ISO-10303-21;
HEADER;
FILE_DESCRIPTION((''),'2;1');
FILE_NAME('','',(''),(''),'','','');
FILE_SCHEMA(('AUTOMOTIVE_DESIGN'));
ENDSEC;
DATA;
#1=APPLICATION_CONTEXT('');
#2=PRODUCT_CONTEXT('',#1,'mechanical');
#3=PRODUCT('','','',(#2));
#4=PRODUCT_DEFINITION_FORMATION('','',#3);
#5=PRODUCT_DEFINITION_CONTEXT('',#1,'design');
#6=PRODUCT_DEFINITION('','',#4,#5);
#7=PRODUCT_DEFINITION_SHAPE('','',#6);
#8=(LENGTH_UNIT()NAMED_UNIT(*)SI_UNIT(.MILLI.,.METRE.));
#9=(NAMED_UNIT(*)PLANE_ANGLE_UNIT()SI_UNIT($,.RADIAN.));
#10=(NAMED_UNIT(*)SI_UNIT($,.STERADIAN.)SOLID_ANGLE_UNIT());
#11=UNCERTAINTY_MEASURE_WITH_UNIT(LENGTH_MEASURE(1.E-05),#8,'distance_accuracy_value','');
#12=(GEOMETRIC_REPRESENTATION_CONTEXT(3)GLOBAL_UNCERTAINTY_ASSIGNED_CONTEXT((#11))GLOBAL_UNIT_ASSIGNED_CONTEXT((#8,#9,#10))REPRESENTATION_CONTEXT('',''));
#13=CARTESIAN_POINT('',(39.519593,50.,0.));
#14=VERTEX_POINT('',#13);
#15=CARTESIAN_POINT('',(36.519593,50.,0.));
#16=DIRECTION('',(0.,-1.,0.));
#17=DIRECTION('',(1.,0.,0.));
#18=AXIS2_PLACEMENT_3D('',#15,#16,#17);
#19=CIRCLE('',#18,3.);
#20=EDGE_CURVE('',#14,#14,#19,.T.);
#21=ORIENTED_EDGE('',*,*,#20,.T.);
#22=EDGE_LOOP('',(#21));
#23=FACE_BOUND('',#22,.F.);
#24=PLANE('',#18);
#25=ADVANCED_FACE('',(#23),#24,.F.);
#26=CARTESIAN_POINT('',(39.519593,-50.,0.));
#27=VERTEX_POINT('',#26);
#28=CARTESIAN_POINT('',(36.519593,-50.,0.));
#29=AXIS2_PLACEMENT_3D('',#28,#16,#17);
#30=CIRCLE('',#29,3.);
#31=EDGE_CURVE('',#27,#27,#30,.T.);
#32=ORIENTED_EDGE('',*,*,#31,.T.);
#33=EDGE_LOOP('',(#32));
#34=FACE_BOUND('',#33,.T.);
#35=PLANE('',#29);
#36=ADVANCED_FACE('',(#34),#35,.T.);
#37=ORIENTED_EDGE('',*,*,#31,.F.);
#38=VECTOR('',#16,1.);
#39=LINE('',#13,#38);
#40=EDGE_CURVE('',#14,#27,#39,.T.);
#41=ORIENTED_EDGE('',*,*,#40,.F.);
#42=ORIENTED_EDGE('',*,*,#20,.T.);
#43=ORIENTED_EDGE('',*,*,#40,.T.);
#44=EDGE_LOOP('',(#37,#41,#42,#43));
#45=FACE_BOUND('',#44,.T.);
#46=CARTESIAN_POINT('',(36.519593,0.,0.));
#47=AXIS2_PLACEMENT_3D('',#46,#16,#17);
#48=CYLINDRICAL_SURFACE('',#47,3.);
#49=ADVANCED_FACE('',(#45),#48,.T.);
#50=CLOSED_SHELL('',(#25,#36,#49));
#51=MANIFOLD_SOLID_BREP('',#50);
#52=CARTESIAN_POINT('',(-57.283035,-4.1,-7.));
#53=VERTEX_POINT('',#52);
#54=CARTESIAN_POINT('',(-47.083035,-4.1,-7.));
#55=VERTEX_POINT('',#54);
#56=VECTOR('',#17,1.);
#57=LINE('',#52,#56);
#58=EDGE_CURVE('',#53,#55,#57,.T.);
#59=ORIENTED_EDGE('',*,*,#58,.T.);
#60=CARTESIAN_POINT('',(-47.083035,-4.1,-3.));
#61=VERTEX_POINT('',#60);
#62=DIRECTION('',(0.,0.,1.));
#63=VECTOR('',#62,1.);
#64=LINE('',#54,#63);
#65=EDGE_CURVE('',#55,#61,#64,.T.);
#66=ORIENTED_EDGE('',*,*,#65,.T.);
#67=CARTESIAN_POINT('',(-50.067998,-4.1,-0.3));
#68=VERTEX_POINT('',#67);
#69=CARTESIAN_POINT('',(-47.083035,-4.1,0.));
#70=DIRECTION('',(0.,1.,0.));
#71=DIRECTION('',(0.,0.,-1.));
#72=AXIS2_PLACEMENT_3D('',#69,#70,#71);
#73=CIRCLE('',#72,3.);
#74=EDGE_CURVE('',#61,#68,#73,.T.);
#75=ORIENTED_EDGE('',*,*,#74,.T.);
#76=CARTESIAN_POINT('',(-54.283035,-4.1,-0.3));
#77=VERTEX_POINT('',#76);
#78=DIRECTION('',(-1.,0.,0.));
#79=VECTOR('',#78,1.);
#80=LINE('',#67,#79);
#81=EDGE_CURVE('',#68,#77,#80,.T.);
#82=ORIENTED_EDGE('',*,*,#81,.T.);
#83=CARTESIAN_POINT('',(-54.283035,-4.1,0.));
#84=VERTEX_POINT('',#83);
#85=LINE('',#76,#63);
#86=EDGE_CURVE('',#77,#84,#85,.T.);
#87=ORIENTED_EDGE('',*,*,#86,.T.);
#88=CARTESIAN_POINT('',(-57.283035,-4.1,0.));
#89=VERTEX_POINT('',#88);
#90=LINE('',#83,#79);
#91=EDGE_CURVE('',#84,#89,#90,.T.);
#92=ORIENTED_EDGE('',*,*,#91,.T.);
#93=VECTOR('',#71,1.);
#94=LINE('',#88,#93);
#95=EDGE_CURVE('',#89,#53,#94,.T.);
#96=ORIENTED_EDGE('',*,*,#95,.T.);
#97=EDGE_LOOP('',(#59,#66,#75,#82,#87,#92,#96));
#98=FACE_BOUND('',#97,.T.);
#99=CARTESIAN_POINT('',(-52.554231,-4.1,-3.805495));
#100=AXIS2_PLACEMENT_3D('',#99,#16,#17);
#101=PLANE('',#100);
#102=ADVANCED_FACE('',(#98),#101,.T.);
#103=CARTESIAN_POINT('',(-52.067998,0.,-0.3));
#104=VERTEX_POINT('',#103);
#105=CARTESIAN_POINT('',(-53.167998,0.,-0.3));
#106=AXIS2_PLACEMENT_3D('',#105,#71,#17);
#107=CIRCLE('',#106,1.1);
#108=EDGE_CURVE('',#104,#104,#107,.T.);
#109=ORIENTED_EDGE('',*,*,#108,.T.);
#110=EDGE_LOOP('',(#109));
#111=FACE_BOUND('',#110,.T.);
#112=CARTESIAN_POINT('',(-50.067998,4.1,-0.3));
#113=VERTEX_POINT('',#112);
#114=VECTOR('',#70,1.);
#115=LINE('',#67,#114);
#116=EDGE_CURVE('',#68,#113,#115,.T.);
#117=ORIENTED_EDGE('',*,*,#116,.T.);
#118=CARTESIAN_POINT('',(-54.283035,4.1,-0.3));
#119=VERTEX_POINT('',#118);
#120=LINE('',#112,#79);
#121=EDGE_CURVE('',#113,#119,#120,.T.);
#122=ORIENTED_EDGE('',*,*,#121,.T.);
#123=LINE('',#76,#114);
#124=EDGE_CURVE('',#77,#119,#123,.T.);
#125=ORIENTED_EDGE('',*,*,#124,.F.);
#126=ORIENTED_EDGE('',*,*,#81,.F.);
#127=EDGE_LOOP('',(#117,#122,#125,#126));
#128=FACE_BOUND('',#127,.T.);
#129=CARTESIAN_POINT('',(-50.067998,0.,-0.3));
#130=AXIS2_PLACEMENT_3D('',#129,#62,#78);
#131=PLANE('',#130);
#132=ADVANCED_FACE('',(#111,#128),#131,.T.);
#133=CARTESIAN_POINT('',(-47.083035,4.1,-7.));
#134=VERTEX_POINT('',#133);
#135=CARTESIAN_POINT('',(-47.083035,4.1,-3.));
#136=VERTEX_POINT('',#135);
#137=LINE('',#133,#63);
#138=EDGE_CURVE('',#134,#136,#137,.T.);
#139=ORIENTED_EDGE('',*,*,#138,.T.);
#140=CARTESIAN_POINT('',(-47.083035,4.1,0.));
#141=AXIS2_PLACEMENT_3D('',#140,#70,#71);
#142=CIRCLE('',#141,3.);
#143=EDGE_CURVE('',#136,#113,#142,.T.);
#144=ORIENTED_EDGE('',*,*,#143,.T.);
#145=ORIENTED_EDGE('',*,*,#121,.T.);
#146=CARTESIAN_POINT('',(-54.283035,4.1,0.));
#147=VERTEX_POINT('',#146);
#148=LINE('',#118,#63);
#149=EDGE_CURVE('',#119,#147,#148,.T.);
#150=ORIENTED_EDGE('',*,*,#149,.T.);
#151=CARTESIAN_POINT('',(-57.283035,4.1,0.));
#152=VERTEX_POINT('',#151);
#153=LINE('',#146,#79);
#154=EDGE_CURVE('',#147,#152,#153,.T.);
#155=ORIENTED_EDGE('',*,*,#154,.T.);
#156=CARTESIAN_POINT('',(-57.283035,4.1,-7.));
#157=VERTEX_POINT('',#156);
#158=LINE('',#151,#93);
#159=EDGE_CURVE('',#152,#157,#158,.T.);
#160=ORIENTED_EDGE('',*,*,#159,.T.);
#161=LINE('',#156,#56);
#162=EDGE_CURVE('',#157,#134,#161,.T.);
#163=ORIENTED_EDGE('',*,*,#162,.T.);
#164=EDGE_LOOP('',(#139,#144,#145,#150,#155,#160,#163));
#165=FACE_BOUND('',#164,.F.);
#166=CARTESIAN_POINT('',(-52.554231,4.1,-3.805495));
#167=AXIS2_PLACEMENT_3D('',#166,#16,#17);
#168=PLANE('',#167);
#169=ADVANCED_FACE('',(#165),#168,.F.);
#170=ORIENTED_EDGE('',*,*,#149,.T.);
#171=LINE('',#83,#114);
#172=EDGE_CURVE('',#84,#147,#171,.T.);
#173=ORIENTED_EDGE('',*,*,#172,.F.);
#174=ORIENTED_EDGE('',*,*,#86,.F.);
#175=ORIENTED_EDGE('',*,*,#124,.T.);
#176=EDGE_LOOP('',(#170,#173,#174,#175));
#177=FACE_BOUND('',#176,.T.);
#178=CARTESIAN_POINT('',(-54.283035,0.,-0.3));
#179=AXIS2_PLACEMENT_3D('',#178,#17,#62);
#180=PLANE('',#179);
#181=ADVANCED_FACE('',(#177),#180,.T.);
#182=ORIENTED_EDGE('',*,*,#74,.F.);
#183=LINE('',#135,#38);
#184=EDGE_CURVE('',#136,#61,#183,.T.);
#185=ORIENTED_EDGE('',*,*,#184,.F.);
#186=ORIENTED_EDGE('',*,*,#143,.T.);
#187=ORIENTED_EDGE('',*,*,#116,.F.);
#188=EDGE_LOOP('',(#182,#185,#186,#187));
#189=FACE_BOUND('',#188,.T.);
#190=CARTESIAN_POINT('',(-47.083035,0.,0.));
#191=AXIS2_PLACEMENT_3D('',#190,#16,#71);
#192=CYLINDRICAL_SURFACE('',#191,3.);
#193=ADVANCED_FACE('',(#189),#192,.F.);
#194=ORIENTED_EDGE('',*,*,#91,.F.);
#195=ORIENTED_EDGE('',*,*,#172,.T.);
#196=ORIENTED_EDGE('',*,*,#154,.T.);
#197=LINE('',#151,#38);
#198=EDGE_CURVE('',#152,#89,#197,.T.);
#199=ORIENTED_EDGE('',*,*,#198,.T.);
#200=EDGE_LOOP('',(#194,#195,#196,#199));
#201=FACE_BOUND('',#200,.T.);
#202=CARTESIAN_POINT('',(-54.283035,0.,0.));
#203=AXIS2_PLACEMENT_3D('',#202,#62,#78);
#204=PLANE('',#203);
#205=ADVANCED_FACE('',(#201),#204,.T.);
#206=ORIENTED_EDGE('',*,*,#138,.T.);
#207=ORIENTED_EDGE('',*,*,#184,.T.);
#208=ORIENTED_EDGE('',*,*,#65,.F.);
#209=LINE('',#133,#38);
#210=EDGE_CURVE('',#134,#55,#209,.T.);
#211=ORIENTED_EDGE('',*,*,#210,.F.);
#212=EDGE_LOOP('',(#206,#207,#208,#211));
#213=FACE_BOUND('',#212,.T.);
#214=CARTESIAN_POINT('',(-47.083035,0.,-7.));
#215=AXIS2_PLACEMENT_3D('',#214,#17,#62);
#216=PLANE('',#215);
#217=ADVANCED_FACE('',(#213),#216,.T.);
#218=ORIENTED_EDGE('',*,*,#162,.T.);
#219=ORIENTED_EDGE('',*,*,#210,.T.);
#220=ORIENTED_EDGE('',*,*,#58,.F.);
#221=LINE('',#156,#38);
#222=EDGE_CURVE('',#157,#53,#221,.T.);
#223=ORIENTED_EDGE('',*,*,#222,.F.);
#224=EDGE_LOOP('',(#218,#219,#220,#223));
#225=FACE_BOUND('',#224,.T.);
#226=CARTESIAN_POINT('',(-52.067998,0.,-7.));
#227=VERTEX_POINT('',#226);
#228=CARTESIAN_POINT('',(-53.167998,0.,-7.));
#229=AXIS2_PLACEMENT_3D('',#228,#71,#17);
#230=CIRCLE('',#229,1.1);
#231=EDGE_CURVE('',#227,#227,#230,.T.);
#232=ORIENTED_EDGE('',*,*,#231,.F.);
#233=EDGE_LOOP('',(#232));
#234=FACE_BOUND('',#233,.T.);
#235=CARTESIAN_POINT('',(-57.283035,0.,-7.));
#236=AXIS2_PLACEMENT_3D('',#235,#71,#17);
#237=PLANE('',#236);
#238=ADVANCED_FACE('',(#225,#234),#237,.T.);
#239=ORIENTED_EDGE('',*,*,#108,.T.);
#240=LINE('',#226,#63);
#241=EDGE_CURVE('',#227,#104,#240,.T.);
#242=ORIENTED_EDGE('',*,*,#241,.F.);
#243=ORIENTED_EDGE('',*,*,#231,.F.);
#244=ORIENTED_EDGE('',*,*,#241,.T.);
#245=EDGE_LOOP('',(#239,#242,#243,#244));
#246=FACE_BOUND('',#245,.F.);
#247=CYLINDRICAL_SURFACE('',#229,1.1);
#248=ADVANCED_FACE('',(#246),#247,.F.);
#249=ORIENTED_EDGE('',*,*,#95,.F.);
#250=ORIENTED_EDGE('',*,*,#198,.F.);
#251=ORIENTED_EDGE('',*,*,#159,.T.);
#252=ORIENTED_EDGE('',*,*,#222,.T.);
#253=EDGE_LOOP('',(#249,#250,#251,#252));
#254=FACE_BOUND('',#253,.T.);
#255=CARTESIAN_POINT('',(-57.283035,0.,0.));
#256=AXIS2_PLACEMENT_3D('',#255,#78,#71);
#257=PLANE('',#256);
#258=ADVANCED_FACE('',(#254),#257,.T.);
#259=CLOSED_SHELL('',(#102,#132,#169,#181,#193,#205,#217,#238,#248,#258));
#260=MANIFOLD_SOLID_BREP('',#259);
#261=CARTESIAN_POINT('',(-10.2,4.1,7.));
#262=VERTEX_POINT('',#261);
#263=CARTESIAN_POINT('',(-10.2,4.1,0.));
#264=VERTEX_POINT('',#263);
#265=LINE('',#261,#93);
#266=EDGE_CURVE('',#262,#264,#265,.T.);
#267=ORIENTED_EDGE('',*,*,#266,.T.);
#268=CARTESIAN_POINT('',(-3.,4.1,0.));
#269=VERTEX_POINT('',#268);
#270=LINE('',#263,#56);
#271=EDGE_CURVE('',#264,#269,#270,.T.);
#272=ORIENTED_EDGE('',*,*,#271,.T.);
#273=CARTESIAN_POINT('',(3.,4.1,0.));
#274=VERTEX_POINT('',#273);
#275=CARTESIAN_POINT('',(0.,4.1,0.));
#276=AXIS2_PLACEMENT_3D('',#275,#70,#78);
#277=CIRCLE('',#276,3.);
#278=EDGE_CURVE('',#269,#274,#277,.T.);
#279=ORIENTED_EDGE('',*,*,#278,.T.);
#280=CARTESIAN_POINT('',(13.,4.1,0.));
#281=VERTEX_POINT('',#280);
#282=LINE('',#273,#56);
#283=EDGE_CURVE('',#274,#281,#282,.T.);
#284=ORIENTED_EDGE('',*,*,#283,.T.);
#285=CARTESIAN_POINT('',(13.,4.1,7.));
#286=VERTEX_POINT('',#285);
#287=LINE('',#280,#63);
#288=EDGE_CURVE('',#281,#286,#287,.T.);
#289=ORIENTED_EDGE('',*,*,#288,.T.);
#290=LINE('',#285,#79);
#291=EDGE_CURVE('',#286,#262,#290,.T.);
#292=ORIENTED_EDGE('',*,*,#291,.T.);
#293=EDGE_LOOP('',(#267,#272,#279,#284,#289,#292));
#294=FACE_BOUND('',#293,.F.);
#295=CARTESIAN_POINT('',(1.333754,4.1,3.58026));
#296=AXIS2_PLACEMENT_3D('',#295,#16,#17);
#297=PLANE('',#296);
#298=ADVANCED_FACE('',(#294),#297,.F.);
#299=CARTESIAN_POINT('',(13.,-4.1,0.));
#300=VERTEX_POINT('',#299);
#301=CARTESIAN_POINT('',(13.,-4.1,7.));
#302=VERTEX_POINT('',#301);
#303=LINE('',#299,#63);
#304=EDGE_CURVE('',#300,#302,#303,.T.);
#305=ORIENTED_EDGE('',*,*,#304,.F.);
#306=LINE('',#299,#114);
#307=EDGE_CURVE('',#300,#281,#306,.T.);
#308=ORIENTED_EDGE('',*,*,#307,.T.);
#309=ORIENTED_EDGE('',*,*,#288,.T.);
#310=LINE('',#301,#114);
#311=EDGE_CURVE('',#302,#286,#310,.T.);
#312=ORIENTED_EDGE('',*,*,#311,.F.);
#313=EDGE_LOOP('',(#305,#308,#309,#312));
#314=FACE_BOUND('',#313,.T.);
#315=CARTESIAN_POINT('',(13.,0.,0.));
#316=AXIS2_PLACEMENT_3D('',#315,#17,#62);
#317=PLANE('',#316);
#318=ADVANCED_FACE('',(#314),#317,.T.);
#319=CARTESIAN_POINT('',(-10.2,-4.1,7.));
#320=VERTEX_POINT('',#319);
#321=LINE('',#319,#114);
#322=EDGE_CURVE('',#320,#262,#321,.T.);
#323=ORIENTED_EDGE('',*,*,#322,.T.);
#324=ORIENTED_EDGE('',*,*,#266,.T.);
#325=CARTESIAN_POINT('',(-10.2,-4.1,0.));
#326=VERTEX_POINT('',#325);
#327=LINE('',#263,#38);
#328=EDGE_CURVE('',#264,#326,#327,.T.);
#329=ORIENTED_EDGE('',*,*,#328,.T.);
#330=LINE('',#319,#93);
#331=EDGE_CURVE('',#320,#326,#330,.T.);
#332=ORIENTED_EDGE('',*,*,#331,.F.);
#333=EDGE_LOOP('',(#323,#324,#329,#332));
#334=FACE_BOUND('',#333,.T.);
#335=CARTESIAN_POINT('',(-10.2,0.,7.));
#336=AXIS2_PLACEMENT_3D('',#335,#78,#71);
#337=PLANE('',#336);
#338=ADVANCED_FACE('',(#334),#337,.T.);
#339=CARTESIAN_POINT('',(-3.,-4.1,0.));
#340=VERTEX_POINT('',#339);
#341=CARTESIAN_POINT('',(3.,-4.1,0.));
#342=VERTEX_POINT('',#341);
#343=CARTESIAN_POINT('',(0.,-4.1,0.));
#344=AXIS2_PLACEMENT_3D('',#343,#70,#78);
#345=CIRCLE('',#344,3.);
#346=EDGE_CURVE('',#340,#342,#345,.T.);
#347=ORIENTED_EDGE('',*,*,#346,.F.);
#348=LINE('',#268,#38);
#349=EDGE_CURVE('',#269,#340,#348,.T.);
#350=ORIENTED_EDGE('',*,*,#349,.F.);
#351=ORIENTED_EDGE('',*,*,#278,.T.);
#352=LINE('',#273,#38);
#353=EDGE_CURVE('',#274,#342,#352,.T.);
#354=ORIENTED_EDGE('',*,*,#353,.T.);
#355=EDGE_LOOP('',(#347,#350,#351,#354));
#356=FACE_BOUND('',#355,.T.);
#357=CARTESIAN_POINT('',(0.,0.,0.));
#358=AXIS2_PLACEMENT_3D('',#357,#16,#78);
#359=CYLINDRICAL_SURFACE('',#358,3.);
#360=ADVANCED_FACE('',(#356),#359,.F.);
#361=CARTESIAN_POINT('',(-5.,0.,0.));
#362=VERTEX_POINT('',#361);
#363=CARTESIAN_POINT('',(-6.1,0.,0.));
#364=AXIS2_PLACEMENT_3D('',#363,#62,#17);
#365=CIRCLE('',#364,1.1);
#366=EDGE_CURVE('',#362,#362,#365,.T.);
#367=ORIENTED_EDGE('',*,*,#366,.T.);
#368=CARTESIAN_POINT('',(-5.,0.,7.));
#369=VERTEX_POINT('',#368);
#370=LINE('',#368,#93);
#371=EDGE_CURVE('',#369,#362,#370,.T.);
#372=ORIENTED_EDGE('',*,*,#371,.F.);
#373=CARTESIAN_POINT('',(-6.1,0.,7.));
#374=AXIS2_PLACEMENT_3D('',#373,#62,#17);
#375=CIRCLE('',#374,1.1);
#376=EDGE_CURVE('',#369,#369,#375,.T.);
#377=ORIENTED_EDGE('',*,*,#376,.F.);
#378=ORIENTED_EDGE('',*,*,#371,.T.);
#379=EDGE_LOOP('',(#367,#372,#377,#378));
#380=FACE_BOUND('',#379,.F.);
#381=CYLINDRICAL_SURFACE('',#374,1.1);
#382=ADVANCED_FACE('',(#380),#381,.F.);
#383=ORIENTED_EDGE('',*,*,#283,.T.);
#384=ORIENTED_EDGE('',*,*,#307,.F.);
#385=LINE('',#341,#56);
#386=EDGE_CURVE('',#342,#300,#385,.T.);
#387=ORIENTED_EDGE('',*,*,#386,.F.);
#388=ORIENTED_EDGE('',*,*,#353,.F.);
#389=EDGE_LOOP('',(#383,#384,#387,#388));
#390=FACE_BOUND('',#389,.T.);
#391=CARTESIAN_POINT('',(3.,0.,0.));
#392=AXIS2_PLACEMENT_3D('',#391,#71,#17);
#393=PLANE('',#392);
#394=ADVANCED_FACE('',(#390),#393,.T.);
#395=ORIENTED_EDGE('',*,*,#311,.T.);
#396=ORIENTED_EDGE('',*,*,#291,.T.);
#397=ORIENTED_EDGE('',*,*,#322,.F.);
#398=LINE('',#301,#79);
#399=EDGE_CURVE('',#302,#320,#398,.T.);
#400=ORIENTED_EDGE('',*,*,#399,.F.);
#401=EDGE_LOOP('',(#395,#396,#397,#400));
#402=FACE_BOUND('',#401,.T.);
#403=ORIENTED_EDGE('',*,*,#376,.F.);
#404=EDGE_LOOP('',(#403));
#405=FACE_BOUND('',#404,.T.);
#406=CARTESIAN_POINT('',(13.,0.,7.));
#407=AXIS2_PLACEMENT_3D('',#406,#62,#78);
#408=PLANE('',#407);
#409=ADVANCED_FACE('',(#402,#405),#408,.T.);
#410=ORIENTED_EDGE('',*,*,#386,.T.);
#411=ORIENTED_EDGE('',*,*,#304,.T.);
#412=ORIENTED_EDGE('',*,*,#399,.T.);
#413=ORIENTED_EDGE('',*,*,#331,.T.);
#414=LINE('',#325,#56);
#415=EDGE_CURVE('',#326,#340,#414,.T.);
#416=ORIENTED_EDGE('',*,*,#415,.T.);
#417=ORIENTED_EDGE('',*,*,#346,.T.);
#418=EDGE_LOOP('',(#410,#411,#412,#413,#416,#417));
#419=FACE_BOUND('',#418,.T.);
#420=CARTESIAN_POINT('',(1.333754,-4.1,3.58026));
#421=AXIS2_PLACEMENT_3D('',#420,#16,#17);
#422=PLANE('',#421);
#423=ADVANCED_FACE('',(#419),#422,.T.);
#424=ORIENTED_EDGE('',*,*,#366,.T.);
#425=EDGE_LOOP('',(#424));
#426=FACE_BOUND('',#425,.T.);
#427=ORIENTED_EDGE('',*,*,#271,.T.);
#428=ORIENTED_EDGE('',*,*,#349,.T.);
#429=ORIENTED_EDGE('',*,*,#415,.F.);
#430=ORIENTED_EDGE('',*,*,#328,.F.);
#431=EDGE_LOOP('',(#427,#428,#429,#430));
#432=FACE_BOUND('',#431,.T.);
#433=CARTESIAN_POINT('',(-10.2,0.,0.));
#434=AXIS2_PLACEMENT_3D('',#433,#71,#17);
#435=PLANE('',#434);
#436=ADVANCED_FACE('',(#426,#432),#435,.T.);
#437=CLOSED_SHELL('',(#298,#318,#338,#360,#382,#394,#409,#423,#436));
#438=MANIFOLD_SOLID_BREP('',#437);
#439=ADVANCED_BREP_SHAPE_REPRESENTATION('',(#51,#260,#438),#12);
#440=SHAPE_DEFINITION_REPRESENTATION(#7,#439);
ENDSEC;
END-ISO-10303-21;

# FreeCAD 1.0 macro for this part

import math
import FreeCAD as App
import Part
import Sketcher
from FreeCAD import Vector
Q = App.Units.Quantity

doc = App.newDocument("Part")
body = doc.addObject("PartDesign::Body", "Body")

# Sketch on XZ plane
sketch1 = body.newObject("Sketcher::SketchObject", "Sketch")
sketch1.AttachmentSupport = (doc.getObject("XZ_Plane"), [""])
sketch1.MapMode = "FlatFace"
sketch1.addGeometry([
    Part.LineSegment(Vector(-10.2, 7, 0), Vector(-10.2, 0, 0)),  # 0
    Part.LineSegment(Vector(-10.2, 0, 0), Vector(-3, 0, 0)),  # 1
    Part.ArcOfCircle(Part.Circle(Vector(0, 0, 0), Vector(0, 0, 1), 3), math.radians(0), math.radians(180)),  # 2
    Part.LineSegment(Vector(3, 0, 0), Vector(13, 0, 0)),  # 3
    Part.LineSegment(Vector(13, 0, 0), Vector(13, 7, 0)),  # 4
    Part.LineSegment(Vector(13, 7, 0), Vector(-10.2, 7, 0)),  # 5
], False)
sketch1.addConstraint([
    Sketcher.Constraint("Coincident", 0, 2, 1, 1),
    Sketcher.Constraint("Coincident", 1, 2, 2, 2),
    Sketcher.Constraint("Coincident", 2, 1, 3, 1),
    Sketcher.Constraint("Coincident", 3, 2, 4, 1),
    Sketcher.Constraint("Coincident", 4, 2, 5, 1),
    Sketcher.Constraint("Coincident", 5, 2, 0, 1),
    Sketcher.Constraint("Vertical", 0),
    Sketcher.Constraint("Horizontal", 1),
    Sketcher.Constraint("Horizontal", 3),
    Sketcher.Constraint("Vertical", 4),
    Sketcher.Constraint("Horizontal", 5),
    Sketcher.Constraint("Coincident", 2, 3, -1, 1),
    Sketcher.Constraint("PointOnObject", 0, 2, -1),
    Sketcher.Constraint("PointOnObject", 2, 1, -1),
    Sketcher.Constraint("Radius", 2, Q("3 mm")),
    Sketcher.Constraint("DistanceX", 3, 1, 3, 2, Q("10 mm")),
    Sketcher.Constraint("DistanceY", 0, 2, 0, 1, Q("7 mm")),
    Sketcher.Constraint("DistanceX", 1, 1, 1, 2, Q("7.2 mm")),
])
pad1 = body.newObject("PartDesign::Pad", "Pad")
pad1.Profile = sketch1
pad1.Length = 8.2
pad1.Midplane = True

# Sketch on XY plane
sketch2 = body.newObject("Sketcher::SketchObject", "Sketch001")
sketch2.AttachmentSupport = (doc.getObject("XY_Plane"), [""])
sketch2.MapMode = "FlatFace"
sketch2.AttachmentOffset = App.Placement(Vector(0, 0, 7), App.Rotation())
sketch2.addGeometry(Part.Circle(Vector(-6.1, 0, 0), Vector(0, 0, 1), 1.1), False)
sketch2.addConstraint([
    Sketcher.Constraint("PointOnObject", 0, 3, -1),
    Sketcher.Constraint("Diameter", 0, Q("2.2 mm")),
    Sketcher.Constraint("DistanceX", 0, 3, -1, 1, Q("6.1 mm")),
])
pocket1 = body.newObject("PartDesign::Pocket", "Pocket")
pocket1.Profile = sketch2
pocket1.Type = "ThroughAll"
body2 = doc.addObject("PartDesign::Body", "Body001")

# Sketch on XZ plane
sketch3 = body2.newObject("Sketcher::SketchObject", "Sketch002")
sketch3.AttachmentSupport = (doc.getObject("XZ_Plane001"), [""])
sketch3.MapMode = "FlatFace"
sketch3.addGeometry([
    Part.LineSegment(Vector(-54.28, 0, 0), Vector(-57.28, 0, 0)),  # 0
    Part.LineSegment(Vector(-57.28, 0, 0), Vector(-57.28, -7, 0)),  # 1
    Part.LineSegment(Vector(-57.28, -7, 0), Vector(-47.08, -7, 0)),  # 2
    Part.LineSegment(Vector(-47.08, -7, 0), Vector(-47.08, -3, 0)),  # 3
    Part.ArcOfCircle(Part.Circle(Vector(-47.08, 0, 0), Vector(0, 0, 1), 3), math.radians(-174), math.radians(-90)),  # 4
    Part.LineSegment(Vector(-50.07, -0.3, 0), Vector(-54.28, -0.3, 0)),  # 5
    Part.LineSegment(Vector(-54.28, -0.3, 0), Vector(-54.28, 0, 0)),  # 6
], False)
sketch3.addConstraint([
    Sketcher.Constraint("Coincident", 0, 2, 1, 1),
    Sketcher.Constraint("Coincident", 1, 2, 2, 1),
    Sketcher.Constraint("Coincident", 2, 2, 3, 1),
    Sketcher.Constraint("Coincident", 3, 2, 4, 2),
    Sketcher.Constraint("Coincident", 4, 1, 5, 1),
    Sketcher.Constraint("Coincident", 5, 2, 6, 1),
    Sketcher.Constraint("Coincident", 6, 2, 0, 1),
    Sketcher.Constraint("Horizontal", 0),
    Sketcher.Constraint("Vertical", 1),
    Sketcher.Constraint("Horizontal", 2),
    Sketcher.Constraint("Vertical", 3),
    Sketcher.Constraint("Horizontal", 5),
    Sketcher.Constraint("Vertical", 6),
    Sketcher.Constraint("PointOnObject", 4, 3, -1),
    Sketcher.Constraint("PointOnObject", 0, 2, -1),
    Sketcher.Constraint("Vertical", 4, 3, 2, 2),
    Sketcher.Constraint("Radius", 4, Q("3 mm")),
    Sketcher.Constraint("DistanceX", 0, 2, 0, 1, Q("3 mm")),
    Sketcher.Constraint("DistanceY", 1, 2, 1, 1, Q("7 mm")),
    Sketcher.Constraint("DistanceX", 2, 1, 2, 2, Q("10.2 mm")),
    Sketcher.Constraint("DistanceY", 6, 1, 6, 2, Q("0.3 mm")),
    Sketcher.Constraint("DistanceX", 4, 3, -1, 1, Q("47.083035 mm")),
])
pad2 = body2.newObject("PartDesign::Pad", "Pad001")
pad2.Profile = sketch3
pad2.Length = 8.2
pad2.Midplane = True

# Sketch on XY plane
sketch4 = body2.newObject("Sketcher::SketchObject", "Sketch003")
sketch4.AttachmentSupport = (doc.getObject("XY_Plane001"), [""])
sketch4.MapMode = "FlatFace"
sketch4.AttachmentOffset = App.Placement(Vector(0, 0, -7), App.Rotation())
sketch4.addGeometry(Part.Circle(Vector(-53.2, 0, 0), Vector(0, 0, 1), 1.1), False)
sketch4.addConstraint([
    Sketcher.Constraint("PointOnObject", 0, 3, -1),
    Sketcher.Constraint("Diameter", 0, Q("2.2 mm")),
    Sketcher.Constraint("DistanceX", 0, 3, -1, 1, Q("53.167998 mm")),
])
pocket2 = body2.newObject("PartDesign::Pocket", "Pocket001")
pocket2.Profile = sketch4
pocket2.Type = "ThroughAll"
pocket2.Reversed = True
body3 = doc.addObject("PartDesign::Body", "Body002")

# Sketch on XZ plane
sketch5 = body3.newObject("Sketcher::SketchObject", "Sketch004")
sketch5.AttachmentSupport = (doc.getObject("XZ_Plane002"), [""])
sketch5.MapMode = "FlatFace"
sketch5.addGeometry(Part.Circle(Vector(36.5, 0, 0), Vector(0, 0, 1), 3), False)
sketch5.addConstraint([
    Sketcher.Constraint("PointOnObject", 0, 3, -1),
    Sketcher.Constraint("Diameter", 0, Q("6 mm")),
    Sketcher.Constraint("DistanceX", -1, 1, 0, 3, Q("36.519593 mm")),
])
pad3 = body3.newObject("PartDesign::Pad", "Pad002")
pad3.Profile = sketch5
pad3.Length = 100
pad3.Midplane = True

doc.recompute()
